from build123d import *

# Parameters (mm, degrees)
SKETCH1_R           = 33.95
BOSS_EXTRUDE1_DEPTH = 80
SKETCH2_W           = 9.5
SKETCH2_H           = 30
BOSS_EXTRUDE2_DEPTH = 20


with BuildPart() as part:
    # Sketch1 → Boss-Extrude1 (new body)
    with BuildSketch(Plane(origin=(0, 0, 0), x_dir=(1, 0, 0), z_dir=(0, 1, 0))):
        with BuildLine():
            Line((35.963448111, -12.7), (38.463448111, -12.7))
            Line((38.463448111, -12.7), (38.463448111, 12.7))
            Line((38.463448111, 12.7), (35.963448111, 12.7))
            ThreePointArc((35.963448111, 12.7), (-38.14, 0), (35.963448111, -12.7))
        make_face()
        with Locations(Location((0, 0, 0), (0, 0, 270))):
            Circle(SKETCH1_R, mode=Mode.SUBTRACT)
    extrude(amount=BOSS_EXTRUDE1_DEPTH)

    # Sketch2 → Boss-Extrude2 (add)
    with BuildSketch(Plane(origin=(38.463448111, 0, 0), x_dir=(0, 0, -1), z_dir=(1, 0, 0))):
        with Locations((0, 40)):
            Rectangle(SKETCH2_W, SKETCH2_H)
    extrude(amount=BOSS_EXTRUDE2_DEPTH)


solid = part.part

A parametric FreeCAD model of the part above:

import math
import FreeCAD as App
import Part
import Sketcher
from FreeCAD import Vector
Q = App.Units.Quantity


def add_polygon(sketch, points):
    """Adds a closed chain of lines whose ends are joined by coincident constraints."""
    first, n = sketch.GeometryCount, len(points)
    for a, b in zip(points, points[1:] + points[:1]):
        sketch.addGeometry(Part.LineSegment(App.Vector(*a, 0), App.Vector(*b, 0)), False)
    for i in range(n):
        sketch.addConstraint(Sketcher.Constraint("Coincident", first + i, 2, first + (i + 1) % n, 1))

doc = App.newDocument("Part")
body = doc.addObject("PartDesign::Body", "Body")

# Sketch on XZ plane
sketch1 = body.newObject("Sketcher::SketchObject", "Sketch")
sketch1.AttachmentSupport = (doc.getObject("XZ_Plane"), [""])
sketch1.MapMode = "FlatFace"
sketch1.addGeometry([
    Part.LineSegment(Vector(36, 12.7, 0), Vector(38.5, 12.7, 0)),  # 0
    Part.LineSegment(Vector(38.5, 12.7, 0), Vector(38.5, -12.7, 0)),  # 1
    Part.LineSegment(Vector(38.5, -12.7, 0), Vector(36, -12.7, 0)),  # 2
    Part.ArcOfCircle(Part.Circle(Vector(0, 0, 0), Vector(0, 0, 1), 38.1), math.radians(19), math.radians(341)),  # 3
    Part.Circle(Vector(0, 0, 0), Vector(0, 0, 1), 34),  # 4
], False)
sketch1.addConstraint([
    Sketcher.Constraint("Coincident", 0, 2, 1, 1),
    Sketcher.Constraint("Coincident", 1, 2, 2, 1),
    Sketcher.Constraint("Coincident", 2, 2, 3, 2),
    Sketcher.Constraint("Coincident", 3, 1, 0, 1),
    Sketcher.Constraint("Horizontal", 0),
    Sketcher.Constraint("Vertical", 1),
    Sketcher.Constraint("Horizontal", 2),
    Sketcher.Constraint("Coincident", 3, 3, -1, 1),
    Sketcher.Constraint("Coincident", 4, 3, -1, 1),
    Sketcher.Constraint("Vertical", 2, 2, 3, 1),
    Sketcher.Constraint("Diameter", 4, Q("67.9 mm")),
    Sketcher.Constraint("Radius", 3, Q("38.14 mm")),
    Sketcher.Constraint("DistanceX", 0, 1, 0, 2, Q("2.5 mm")),
    Sketcher.Constraint("DistanceY", 1, 2, 1, 1, Q("25.4 mm")),
])
pad1 = body.newObject("PartDesign::Pad", "Pad")
pad1.Profile = sketch1
pad1.Length = 80
pad1.Reversed = True

# Sketch on YZ plane
sketch2 = body.newObject("Sketcher::SketchObject", "Sketch001")
sketch2.AttachmentSupport = (doc.getObject("YZ_Plane"), [""])
sketch2.MapMode = "FlatFace"
sketch2.AttachmentOffset = App.Placement(Vector(0, 0, 38.463448), App.Rotation())
add_polygon(sketch2, [(55, 5), (25, 5), (25, -5), (55, -5)])  # lines 0-3
sketch2.addConstraint([
    Sketcher.Constraint("Horizontal", 0),
    Sketcher.Constraint("Vertical", 1),
    Sketcher.Constraint("Horizontal", 2),
    Sketcher.Constraint("Vertical", 3),
    Sketcher.Constraint("DistanceX", 0, 2, 0, 1, Q("30 mm")),
    Sketcher.Constraint("DistanceY", 1, 2, 1, 1, Q("9.5 mm")),
    Sketcher.Constraint("DistanceX", -1, 1, 0, 2, Q("25 mm")),
    Sketcher.Constraint("DistanceY", -1, 1, 0, 2, Q("4.75 mm")),
])
pad2 = body.newObject("PartDesign::Pad", "Pad001")
pad2.Profile = sketch2
pad2.Length = 20

doc.recompute()
